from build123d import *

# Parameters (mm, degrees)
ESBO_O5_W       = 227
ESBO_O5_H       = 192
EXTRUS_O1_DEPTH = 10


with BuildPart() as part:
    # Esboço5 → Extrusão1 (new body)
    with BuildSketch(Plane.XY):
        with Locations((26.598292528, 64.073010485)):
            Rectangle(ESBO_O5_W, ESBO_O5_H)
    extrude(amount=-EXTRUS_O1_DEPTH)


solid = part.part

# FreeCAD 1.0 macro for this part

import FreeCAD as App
import Part
import Sketcher
Q = App.Units.Quantity


def add_polygon(sketch, points):
    """Adds a closed chain of lines whose ends are joined by coincident constraints."""
    first, n = sketch.GeometryCount, len(points)
    for a, b in zip(points, points[1:] + points[:1]):
        sketch.addGeometry(Part.LineSegment(App.Vector(*a, 0), App.Vector(*b, 0)), False)
    for i in range(n):
        sketch.addConstraint(Sketcher.Constraint("Coincident", first + i, 2, first + (i + 1) % n, 1))

doc = App.newDocument("Part")
body = doc.addObject("PartDesign::Body", "Body")

# Sketch on XY plane
sketch1 = body.newObject("Sketcher::SketchObject", "Sketch")
sketch1.AttachmentSupport = (doc.getObject("XY_Plane"), [""])
sketch1.MapMode = "FlatFace"
add_polygon(sketch1, [(-87, 160), (-87, -32), (140, -32), (140, 160)])  # lines 0-3
sketch1.addConstraint([
    Sketcher.Constraint("Vertical", 0),
    Sketcher.Constraint("Horizontal", 1),
    Sketcher.Constraint("Vertical", 2),
    Sketcher.Constraint("Horizontal", 3),
    Sketcher.Constraint("DistanceX", 1, 1, 1, 2, Q("227 mm")),
    Sketcher.Constraint("DistanceY", 0, 2, 0, 1, Q("192 mm")),
    Sketcher.Constraint("DistanceY", 0, 2, -1, 1, Q("31.92699 mm")),
    Sketcher.Constraint("DistanceX", 0, 2, -1, 1, Q("86.901707 mm")),
])
pad1 = body.newObject("PartDesign::Pad", "Pad")
pad1.Profile = sketch1
pad1.Length = 10
pad1.Reversed = True

doc.recompute()
